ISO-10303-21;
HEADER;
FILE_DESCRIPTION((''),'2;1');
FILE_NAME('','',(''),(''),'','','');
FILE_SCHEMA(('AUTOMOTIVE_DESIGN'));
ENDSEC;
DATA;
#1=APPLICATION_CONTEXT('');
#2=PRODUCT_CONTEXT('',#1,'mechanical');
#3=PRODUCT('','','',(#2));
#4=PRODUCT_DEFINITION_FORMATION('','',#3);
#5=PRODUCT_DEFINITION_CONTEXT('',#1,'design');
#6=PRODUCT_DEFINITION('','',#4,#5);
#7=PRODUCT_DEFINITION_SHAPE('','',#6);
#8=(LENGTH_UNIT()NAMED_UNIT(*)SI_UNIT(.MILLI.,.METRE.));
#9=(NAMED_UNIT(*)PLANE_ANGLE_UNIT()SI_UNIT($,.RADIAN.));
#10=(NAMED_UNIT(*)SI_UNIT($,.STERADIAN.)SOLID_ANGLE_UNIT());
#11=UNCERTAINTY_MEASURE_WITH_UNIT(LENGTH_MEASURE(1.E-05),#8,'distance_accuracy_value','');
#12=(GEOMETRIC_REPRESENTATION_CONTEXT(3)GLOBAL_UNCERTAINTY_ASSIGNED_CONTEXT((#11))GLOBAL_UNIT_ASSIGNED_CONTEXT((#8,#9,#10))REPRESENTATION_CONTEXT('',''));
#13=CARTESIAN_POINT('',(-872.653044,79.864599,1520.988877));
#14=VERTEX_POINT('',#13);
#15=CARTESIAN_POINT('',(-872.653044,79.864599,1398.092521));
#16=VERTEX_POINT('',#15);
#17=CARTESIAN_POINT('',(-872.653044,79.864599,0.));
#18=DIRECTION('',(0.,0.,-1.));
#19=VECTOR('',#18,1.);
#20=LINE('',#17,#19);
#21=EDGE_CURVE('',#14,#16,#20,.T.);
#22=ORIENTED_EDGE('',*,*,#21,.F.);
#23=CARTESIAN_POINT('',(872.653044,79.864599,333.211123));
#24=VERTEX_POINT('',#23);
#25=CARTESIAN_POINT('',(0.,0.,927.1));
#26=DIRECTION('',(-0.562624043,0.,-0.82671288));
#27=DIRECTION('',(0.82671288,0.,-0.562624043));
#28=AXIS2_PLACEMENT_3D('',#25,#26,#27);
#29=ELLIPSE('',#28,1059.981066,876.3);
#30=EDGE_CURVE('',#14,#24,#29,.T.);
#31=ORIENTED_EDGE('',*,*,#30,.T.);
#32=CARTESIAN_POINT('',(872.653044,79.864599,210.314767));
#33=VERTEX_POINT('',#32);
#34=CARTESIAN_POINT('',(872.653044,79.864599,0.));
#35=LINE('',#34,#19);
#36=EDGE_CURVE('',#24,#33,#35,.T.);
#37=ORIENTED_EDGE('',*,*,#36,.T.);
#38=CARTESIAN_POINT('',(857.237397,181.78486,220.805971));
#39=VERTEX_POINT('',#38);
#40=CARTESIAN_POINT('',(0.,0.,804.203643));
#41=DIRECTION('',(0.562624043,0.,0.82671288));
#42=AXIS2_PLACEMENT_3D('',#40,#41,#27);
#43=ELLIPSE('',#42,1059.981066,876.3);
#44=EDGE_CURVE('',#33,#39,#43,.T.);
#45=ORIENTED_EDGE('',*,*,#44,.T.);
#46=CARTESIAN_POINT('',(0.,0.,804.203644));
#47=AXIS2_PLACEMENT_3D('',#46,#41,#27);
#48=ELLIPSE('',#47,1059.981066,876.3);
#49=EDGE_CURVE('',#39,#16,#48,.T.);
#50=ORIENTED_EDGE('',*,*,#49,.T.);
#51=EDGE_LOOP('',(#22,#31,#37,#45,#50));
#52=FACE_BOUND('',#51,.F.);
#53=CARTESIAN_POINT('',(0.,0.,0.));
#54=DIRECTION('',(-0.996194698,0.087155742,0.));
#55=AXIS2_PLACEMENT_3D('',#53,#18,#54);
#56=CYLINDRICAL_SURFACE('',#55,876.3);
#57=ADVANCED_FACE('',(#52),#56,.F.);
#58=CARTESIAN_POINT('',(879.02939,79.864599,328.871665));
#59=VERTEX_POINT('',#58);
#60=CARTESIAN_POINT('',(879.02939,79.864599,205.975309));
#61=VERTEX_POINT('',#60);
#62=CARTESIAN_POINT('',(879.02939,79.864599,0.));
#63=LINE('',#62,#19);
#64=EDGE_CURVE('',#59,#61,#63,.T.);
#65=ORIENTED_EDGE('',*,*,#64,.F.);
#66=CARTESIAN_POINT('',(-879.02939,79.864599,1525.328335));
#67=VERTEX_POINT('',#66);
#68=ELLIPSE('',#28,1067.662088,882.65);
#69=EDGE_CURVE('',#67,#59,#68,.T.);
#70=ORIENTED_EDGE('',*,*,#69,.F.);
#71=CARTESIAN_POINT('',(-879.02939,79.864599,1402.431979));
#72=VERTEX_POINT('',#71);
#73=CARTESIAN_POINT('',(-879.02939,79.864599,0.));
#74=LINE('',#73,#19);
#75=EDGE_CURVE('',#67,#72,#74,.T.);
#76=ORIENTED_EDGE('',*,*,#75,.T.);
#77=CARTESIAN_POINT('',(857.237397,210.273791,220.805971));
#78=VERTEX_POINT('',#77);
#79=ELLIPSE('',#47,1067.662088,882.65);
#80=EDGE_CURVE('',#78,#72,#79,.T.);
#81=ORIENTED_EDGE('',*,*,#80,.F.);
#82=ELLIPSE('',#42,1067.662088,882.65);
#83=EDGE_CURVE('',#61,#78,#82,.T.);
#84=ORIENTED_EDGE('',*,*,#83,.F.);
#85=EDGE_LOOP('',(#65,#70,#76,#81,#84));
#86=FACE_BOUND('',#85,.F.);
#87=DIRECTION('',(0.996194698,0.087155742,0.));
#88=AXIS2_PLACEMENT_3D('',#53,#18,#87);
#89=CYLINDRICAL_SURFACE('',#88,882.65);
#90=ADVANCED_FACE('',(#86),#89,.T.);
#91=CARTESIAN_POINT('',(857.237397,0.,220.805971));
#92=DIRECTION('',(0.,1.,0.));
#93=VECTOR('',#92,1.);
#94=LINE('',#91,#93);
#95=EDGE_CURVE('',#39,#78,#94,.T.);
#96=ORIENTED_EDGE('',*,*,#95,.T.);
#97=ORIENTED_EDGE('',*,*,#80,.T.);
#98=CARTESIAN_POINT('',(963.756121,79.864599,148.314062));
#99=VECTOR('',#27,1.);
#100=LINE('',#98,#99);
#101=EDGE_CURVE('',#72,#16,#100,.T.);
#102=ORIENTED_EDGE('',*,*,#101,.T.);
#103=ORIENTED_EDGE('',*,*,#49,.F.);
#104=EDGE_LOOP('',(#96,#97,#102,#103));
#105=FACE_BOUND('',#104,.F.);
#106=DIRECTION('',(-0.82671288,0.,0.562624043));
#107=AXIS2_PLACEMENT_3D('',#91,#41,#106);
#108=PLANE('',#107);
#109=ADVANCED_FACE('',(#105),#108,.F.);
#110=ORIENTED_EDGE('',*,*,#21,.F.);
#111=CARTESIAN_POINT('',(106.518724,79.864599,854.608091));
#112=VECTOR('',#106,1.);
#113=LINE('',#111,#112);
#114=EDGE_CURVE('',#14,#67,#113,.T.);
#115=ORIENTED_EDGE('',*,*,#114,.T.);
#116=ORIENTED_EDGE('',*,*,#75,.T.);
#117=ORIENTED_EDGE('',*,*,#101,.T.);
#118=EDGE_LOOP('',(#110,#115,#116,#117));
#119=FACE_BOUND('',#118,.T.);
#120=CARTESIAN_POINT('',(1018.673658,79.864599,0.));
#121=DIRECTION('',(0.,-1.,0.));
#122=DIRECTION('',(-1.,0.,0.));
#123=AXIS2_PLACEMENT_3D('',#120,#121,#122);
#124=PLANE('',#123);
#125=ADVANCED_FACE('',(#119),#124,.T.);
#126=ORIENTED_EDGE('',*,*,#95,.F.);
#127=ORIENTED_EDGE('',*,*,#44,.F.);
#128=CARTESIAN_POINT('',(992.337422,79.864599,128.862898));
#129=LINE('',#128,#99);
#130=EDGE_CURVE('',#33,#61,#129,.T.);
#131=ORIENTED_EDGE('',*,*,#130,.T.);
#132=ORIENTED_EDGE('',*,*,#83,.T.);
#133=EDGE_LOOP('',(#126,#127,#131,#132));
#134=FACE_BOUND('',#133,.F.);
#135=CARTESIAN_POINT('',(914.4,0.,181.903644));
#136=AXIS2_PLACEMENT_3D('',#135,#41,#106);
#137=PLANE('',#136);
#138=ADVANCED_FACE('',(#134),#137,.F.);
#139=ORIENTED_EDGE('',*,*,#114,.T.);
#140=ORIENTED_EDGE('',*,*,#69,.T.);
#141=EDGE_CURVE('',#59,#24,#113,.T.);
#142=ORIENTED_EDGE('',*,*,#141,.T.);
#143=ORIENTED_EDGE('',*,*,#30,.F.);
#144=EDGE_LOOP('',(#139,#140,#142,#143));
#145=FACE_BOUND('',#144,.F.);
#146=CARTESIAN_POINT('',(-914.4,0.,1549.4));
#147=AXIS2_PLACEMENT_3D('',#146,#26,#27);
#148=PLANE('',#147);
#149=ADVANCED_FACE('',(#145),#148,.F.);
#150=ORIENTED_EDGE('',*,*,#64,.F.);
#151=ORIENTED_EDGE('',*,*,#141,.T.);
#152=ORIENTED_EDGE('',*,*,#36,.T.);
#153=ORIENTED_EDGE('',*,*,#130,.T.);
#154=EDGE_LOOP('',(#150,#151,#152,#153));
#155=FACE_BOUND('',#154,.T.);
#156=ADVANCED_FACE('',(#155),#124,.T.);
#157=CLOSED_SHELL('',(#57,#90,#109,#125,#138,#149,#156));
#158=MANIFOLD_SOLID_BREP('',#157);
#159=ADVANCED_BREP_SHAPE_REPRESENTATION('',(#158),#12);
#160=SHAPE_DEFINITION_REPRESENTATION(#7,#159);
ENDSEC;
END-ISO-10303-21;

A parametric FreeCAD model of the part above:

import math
import FreeCAD as App
import Part
import Sketcher
Q = App.Units.Quantity

doc = App.newDocument("Part")
body = doc.addObject("PartDesign::Body", "Body")

# Sketch on XY plane
sketch1 = body.newObject("Sketcher::SketchObject", "Sketch")
sketch1.AttachmentSupport = (doc.getObject("XY_Plane"), [""])
sketch1.MapMode = "FlatFace"
sketch1.addGeometry(Part.LineSegment(App.Vector(879, 0, 0), App.Vector(879, 77, 0)), False)
sketch1.addGeometry(Part.ArcOfCircle(Part.Circle(App.Vector(0, 0, 0), App.Vector(0, 0, 1), 883), math.radians(5), math.radians(175)), False)
sketch1.addGeometry(Part.LineSegment(App.Vector(-879, 77, 0), App.Vector(-879, 0, 0)), False)
sketch1.addGeometry(Part.LineSegment(App.Vector(-879, 0, 0), App.Vector(879, 0, 0)), False)
sketch1.addGeometry(Part.LineSegment(App.Vector(-873, 22, 0), App.Vector(-873, 76, 0)), False)
sketch1.addGeometry(Part.ArcOfCircle(Part.Circle(App.Vector(0, 0, 0), App.Vector(0, 0, 1), 876), math.radians(5), math.radians(175)), False)
sketch1.addGeometry(Part.LineSegment(App.Vector(873, 76, 0), App.Vector(873, 22, 0)), False)
sketch1.addGeometry(Part.LineSegment(App.Vector(873, 22, 0), App.Vector(-873, 22, 0)), False)
sketch1.addConstraint(Sketcher.Constraint("Coincident", 0, 2, 1, 1))
sketch1.addConstraint(Sketcher.Constraint("Coincident", 1, 2, 2, 1))
sketch1.addConstraint(Sketcher.Constraint("Coincident", 2, 2, 3, 1))
sketch1.addConstraint(Sketcher.Constraint("Coincident", 3, 2, 0, 1))
sketch1.addConstraint(Sketcher.Constraint("Coincident", 4, 2, 5, 2))
sketch1.addConstraint(Sketcher.Constraint("Coincident", 5, 1, 6, 1))
sketch1.addConstraint(Sketcher.Constraint("Coincident", 6, 2, 7, 1))
sketch1.addConstraint(Sketcher.Constraint("Coincident", 7, 2, 4, 1))
sketch1.addConstraint(Sketcher.Constraint("Vertical", 0))
sketch1.addConstraint(Sketcher.Constraint("Vertical", 2))
sketch1.addConstraint(Sketcher.Constraint("Horizontal", 3))
sketch1.addConstraint(Sketcher.Constraint("Vertical", 4))
sketch1.addConstraint(Sketcher.Constraint("Vertical", 6))
sketch1.addConstraint(Sketcher.Constraint("Horizontal", 7))
sketch1.addConstraint(Sketcher.Constraint("Coincident", 1, 3, -1, 1))
sketch1.addConstraint(Sketcher.Constraint("Coincident", 5, 3, -1, 1))
sketch1.addConstraint(Sketcher.Constraint("Symmetric", 2, 2, 3, 2, -1, 1))
sketch1.addConstraint(Sketcher.Constraint("Equal", 4, 6))
sketch1.addConstraint(Sketcher.Constraint("Radius", 5, Q("34.5 in")))
sketch1.addConstraint(Sketcher.Constraint("Radius", 1, Q("34.75 in")))
sketch1.addConstraint(Sketcher.Constraint("DistanceX", 3, 1, 3, 2, 1758.5825))
sketch1.addConstraint(Sketcher.Constraint("DistanceX", 7, 2, 7, 1, 1745.930828))
sketch1.addConstraint(Sketcher.Constraint("DistanceY", 4, 1, 4, 2, 54.63702))
pad1 = body.newObject("PartDesign::Pad", "Pad")
pad1.Profile = sketch1
pad1.Length = Q("69 in")

# Sketch on XZ plane
sketch2 = body.newObject("Sketcher::SketchObject", "Sketch001")
sketch2.AttachmentSupport = (doc.getObject("XZ_Plane"), [""])
sketch2.MapMode = "FlatFace"
sketch2.addGeometry(Part.LineSegment(App.Vector(-914, 1821, 0), App.Vector(-914, 1549, 0)), False)
sketch2.addGeometry(Part.LineSegment(App.Vector(-914, 1549, 0), App.Vector(914, 305, 0)), False)
sketch2.addGeometry(Part.LineSegment(App.Vector(914, 305, 0), App.Vector(995, 1821, 0)), False)
sketch2.addGeometry(Part.LineSegment(App.Vector(995, 1821, 0), App.Vector(-914, 1821, 0)), False)
sketch2.addConstraint(Sketcher.Constraint("Coincident", 0, 2, 1, 1))
sketch2.addConstraint(Sketcher.Constraint("Coincident", 1, 2, 2, 1))
sketch2.addConstraint(Sketcher.Constraint("Coincident", 2, 2, 3, 1))
sketch2.addConstraint(Sketcher.Constraint("Coincident", 3, 2, 0, 1))
sketch2.addConstraint(Sketcher.Constraint("Vertical", 0))
sketch2.addConstraint(Sketcher.Constraint("Horizontal", 3))
sketch2.addConstraint(Sketcher.Constraint("DistanceX", 0, 2, -1, 1, Q("36 in")))
sketch2.addConstraint(Sketcher.Constraint("DistanceY", -1, 1, 0, 2, Q("61 in")))
sketch2.addConstraint(Sketcher.Constraint("DistanceX", -1, 1, 1, 2, Q("36 in")))
sketch2.addConstraint(Sketcher.Constraint("DistanceY", -1, 1, 1, 2, Q("12 in")))
sketch2.addConstraint(Sketcher.Constraint("DistanceX", 3, 2, 3, 1, 1909.26959))
sketch2.addConstraint(Sketcher.Constraint("DistanceY", 0, 2, 0, 1, 272.086473))
pocket1 = body.newObject("PartDesign::Pocket", "Pocket")
pocket1.Profile = sketch2
pocket1.Type = "ThroughAll"

# Sketch on XZ plane
sketch3 = body.newObject("Sketcher::SketchObject", "Sketch002")
sketch3.AttachmentSupport = (doc.getObject("XZ_Plane"), [""])
sketch3.MapMode = "FlatFace"
sketch3.addGeometry(Part.LineSegment(App.Vector(857, 221, 0), App.Vector(-914, 1427, 0)), False)
sketch3.addGeometry(Part.LineSegment(App.Vector(-914, 1427, 0), App.Vector(-914, 0, 0)), False)
sketch3.addGeometry(Part.LineSegment(App.Vector(-914, 0, 0), App.Vector(914, 0, 0)), False)
sketch3.addGeometry(Part.LineSegment(App.Vector(914, 0, 0), App.Vector(914, 182, 0)), False)
sketch3.addGeometry(Part.LineSegment(App.Vector(914, 182, 0), App.Vector(857, 221, 0)), False)
sketch3.addConstraint(Sketcher.Constraint("Coincident", 0, 2, 1, 1))
sketch3.addConstraint(Sketcher.Constraint("Coincident", 1, 2, 2, 1))
sketch3.addConstraint(Sketcher.Constraint("Coincident", 2, 2, 3, 1))
sketch3.addConstraint(Sketcher.Constraint("Coincident", 3, 2, 4, 1))
sketch3.addConstraint(Sketcher.Constraint("Coincident", 4, 2, 0, 1))
sketch3.addConstraint(Sketcher.Constraint("Vertical", 1))
sketch3.addConstraint(Sketcher.Constraint("Horizontal", 2))
sketch3.addConstraint(Sketcher.Constraint("Vertical", 3))
sketch3.addConstraint(Sketcher.Constraint("Symmetric", 1, 2, 2, 2, -1, 1))
sketch3.addConstraint(Sketcher.Constraint("Parallel", 0, 4))
sketch3.addConstraint(Sketcher.Constraint("DistanceX", 2, 1, 2, 2, Q("72 in")))
sketch3.addConstraint(Sketcher.Constraint("DistanceY", 3, 2, 0, 2, Q("49 in")))
sketch3.addConstraint(Sketcher.Constraint("DistanceY", 1, 2, 1, 1, 1426.503644))
sketch3.addConstraint(Sketcher.Constraint("DistanceY", -1, 1, 4, 2, 220.805971))
pocket2 = body.newObject("PartDesign::Pocket", "Pocket001")
pocket2.Profile = sketch3
pocket2.Type = "ThroughAll"

# Sketch on XY plane
sketch4 = body.newObject("Sketcher::SketchObject", "Sketch003")
sketch4.AttachmentSupport = (doc.getObject("XY_Plane"), [""])
sketch4.MapMode = "FlatFace"
sketch4.addGeometry(Part.LineSegment(App.Vector(-1012, 80, 0), App.Vector(-1012, 0, 0)), False)
sketch4.addGeometry(Part.LineSegment(App.Vector(-1012, 0, 0), App.Vector(1012, 0, 0)), False)
sketch4.addGeometry(Part.LineSegment(App.Vector(1012, 0, 0), App.Vector(1019, 80, 0)), False)
sketch4.addGeometry(Part.LineSegment(App.Vector(1019, 80, 0), App.Vector(-1012, 80, 0)), False)
sketch4.addConstraint(Sketcher.Constraint("Coincident", 0, 2, 1, 1))
sketch4.addConstraint(Sketcher.Constraint("Coincident", 1, 2, 2, 1))
sketch4.addConstraint(Sketcher.Constraint("Coincident", 2, 2, 3, 1))
sketch4.addConstraint(Sketcher.Constraint("Coincident", 3, 2, 0, 1))
sketch4.addConstraint(Sketcher.Constraint("Vertical", 0))
sketch4.addConstraint(Sketcher.Constraint("Horizontal", 1))
sketch4.addConstraint(Sketcher.Constraint("Horizontal", 3))
sketch4.addConstraint(Sketcher.Constraint("Symmetric", 0, 2, 1, 2, -1, 1))
sketch4.addConstraint(Sketcher.Constraint("DistanceY", 0, 2, 0, 1, 79.864599))
sketch4.addConstraint(Sketcher.Constraint("DistanceX", 1, 1, 1, 2, 2023.21124))
sketch4.addConstraint(Sketcher.Constraint("DistanceX", 3, 2, 3, 1, 2030.279278))
pocket3 = body.newObject("PartDesign::Pocket", "Pocket002")
pocket3.Profile = sketch4
pocket3.Type = "ThroughAll"
pocket3.Reversed = True

doc.recompute()
